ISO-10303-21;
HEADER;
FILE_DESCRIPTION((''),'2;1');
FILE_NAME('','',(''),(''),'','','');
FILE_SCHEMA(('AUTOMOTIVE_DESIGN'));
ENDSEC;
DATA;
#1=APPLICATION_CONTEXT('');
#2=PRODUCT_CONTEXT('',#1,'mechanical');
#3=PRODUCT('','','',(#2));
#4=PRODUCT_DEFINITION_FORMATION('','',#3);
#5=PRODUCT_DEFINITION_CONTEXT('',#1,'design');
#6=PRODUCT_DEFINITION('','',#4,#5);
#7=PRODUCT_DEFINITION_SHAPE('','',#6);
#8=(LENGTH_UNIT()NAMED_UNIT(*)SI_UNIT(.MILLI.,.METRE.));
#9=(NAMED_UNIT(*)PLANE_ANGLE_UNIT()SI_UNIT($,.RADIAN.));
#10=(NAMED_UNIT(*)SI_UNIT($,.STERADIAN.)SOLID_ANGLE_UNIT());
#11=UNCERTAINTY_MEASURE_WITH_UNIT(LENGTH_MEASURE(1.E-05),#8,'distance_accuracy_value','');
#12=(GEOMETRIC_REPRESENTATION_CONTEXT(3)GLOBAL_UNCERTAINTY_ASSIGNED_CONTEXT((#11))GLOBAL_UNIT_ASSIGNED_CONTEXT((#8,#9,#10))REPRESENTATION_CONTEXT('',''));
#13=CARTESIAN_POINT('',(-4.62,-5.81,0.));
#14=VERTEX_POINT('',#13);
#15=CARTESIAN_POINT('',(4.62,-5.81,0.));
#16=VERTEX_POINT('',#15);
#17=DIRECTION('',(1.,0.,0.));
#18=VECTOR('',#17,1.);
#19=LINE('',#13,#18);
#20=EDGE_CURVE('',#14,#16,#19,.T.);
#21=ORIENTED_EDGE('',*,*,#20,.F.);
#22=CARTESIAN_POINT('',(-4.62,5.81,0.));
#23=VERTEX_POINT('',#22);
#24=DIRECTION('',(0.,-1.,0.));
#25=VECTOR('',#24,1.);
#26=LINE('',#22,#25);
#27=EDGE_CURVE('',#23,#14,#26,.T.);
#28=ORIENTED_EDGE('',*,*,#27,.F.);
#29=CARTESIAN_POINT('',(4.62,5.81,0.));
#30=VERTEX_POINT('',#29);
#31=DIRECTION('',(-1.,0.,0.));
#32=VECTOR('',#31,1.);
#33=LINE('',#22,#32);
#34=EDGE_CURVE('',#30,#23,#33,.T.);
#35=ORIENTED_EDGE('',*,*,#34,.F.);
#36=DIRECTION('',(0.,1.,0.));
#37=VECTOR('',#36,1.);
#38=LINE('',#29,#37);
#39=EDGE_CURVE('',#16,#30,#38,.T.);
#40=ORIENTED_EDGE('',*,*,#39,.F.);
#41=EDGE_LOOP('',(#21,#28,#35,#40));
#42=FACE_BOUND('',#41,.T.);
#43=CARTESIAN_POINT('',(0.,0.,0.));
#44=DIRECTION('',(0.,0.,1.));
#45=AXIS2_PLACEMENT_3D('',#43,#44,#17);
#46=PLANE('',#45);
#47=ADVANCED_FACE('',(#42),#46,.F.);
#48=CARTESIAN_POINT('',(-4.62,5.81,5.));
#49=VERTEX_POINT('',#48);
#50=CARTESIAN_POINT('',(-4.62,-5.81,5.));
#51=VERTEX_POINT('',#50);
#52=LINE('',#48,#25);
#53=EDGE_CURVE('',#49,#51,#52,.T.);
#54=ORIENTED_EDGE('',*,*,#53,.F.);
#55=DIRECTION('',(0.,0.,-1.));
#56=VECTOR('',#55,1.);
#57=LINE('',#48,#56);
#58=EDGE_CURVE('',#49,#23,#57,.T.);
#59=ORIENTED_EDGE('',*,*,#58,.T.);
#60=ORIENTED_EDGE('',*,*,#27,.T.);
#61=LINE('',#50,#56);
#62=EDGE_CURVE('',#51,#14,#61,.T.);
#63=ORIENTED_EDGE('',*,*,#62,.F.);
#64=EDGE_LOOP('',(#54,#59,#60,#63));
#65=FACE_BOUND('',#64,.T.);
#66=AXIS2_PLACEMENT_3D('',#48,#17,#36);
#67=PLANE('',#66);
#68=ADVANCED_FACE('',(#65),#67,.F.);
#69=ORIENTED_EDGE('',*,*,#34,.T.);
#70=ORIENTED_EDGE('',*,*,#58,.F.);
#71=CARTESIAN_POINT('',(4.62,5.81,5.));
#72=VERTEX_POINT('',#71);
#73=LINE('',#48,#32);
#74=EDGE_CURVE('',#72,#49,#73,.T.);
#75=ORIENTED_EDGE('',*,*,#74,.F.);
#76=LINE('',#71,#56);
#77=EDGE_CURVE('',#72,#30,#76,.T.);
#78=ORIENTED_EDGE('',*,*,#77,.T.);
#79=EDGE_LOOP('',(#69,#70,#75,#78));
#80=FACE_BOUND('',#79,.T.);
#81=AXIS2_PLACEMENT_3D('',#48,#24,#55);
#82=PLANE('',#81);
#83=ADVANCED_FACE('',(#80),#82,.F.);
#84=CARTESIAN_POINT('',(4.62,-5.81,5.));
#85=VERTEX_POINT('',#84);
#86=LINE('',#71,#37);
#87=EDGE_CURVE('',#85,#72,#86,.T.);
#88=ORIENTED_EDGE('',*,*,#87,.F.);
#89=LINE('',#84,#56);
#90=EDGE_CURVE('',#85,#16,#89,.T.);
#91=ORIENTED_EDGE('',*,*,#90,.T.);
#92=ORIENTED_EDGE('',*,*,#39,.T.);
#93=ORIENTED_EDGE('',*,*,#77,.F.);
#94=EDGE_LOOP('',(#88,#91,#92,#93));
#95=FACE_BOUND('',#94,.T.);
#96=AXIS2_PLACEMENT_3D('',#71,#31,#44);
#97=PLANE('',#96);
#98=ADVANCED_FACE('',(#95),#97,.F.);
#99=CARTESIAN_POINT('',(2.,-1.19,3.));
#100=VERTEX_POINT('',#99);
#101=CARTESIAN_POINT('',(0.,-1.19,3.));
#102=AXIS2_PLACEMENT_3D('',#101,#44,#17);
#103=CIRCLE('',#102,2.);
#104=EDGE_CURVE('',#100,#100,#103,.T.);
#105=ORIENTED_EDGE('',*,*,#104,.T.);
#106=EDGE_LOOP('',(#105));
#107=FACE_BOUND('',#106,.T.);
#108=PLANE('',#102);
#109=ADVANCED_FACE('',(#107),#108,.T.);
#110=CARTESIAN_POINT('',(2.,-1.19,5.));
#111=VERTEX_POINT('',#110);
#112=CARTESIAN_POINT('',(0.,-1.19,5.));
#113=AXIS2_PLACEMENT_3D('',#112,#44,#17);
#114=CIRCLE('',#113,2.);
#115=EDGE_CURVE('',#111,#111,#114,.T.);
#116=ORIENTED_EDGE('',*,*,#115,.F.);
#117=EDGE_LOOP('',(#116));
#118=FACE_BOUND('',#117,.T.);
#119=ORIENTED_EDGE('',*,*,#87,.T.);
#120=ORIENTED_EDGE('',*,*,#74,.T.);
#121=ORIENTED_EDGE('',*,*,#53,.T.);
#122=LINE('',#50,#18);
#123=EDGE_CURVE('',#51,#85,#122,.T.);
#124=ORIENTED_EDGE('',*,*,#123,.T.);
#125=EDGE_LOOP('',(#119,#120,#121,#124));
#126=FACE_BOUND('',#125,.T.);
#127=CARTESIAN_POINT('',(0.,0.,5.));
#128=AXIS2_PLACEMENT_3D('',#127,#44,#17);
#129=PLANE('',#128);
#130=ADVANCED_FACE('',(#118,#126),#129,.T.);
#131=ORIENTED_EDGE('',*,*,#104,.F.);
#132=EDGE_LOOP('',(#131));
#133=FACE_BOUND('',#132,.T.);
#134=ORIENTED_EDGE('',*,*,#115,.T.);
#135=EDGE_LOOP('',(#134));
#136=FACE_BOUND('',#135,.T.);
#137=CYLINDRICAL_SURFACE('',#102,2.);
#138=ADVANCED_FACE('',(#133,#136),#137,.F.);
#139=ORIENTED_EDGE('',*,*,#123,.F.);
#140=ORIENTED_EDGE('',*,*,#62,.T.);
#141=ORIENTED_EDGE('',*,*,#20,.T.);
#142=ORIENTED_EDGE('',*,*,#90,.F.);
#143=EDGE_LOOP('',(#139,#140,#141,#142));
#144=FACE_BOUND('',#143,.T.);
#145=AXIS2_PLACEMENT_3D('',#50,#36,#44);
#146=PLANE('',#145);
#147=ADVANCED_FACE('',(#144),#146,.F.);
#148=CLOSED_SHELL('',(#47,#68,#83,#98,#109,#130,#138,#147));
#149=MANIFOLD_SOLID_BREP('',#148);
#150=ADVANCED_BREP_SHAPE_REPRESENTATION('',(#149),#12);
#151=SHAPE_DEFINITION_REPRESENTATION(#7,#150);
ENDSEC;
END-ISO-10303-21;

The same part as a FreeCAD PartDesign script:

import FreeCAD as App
import Part
import Sketcher
Q = App.Units.Quantity

doc = App.newDocument("Part")
body = doc.addObject("PartDesign::Body", "Body")

# Sketch on XY plane
sketch1 = doc.addObject("Sketcher::SketchObject", "Sketch")
body.addObject(sketch1)
sketch1.AttachmentSupport = (doc.XY_Plane, [""])
sketch1.MapMode = "FlatFace"
sketch1.addGeometry(Part.LineSegment(App.Vector(-5, 6, 0), App.Vector(-5, -6, 0)), False)
sketch1.addGeometry(Part.LineSegment(App.Vector(-5, -6, 0), App.Vector(5, -6, 0)), False)
sketch1.addGeometry(Part.LineSegment(App.Vector(5, -6, 0), App.Vector(5, 6, 0)), False)
sketch1.addGeometry(Part.LineSegment(App.Vector(5, 6, 0), App.Vector(-5, 6, 0)), False)
sketch1.addConstraint(Sketcher.Constraint("Coincident", 0, 2, 1, 1))
sketch1.addConstraint(Sketcher.Constraint("Coincident", 1, 2, 2, 1))
sketch1.addConstraint(Sketcher.Constraint("Coincident", 2, 2, 3, 1))
sketch1.addConstraint(Sketcher.Constraint("Coincident", 3, 2, 0, 1))
sketch1.addConstraint(Sketcher.Constraint("Vertical", 0))
sketch1.addConstraint(Sketcher.Constraint("Horizontal", 1))
sketch1.addConstraint(Sketcher.Constraint("Vertical", 2))
sketch1.addConstraint(Sketcher.Constraint("Horizontal", 3))
sketch1.addConstraint(Sketcher.Constraint("Symmetric", 0, 2, 2, 2, -1, 1))
sketch1.addConstraint(Sketcher.Constraint("DistanceX", 1, 1, 1, 2, Q("9.24 mm")))
sketch1.addConstraint(Sketcher.Constraint("DistanceY", 0, 2, 0, 1, Q("11.62 mm")))
pad1 = doc.addObject("PartDesign::Pad", "Pad")
body.addObject(pad1)
pad1.Profile = sketch1
pad1.Length = 5

# Sketch on XY plane
sketch2 = doc.addObject("Sketcher::SketchObject", "Sketch001")
body.addObject(sketch2)
sketch2.AttachmentSupport = (doc.XY_Plane, [""])
sketch2.MapMode = "FlatFace"
sketch2.AttachmentOffset = App.Placement(App.Vector(0, 0, 5), App.Rotation())
sketch2.addGeometry(Part.Circle(App.Vector(0, -1.2, 0), App.Vector(0, 0, 1), 2), False)
sketch2.addConstraint(Sketcher.Constraint("PointOnObject", 0, 3, -2))
sketch2.addConstraint(Sketcher.Constraint("Diameter", 0, Q("4 mm")))
sketch2.addConstraint(Sketcher.Constraint("DistanceY", 0, 3, -1, 1, Q("1.19 mm")))
pocket1 = doc.addObject("PartDesign::Pocket", "Pocket")
body.addObject(pocket1)
pocket1.Profile = sketch2
pocket1.Length = 2

doc.recompute()
